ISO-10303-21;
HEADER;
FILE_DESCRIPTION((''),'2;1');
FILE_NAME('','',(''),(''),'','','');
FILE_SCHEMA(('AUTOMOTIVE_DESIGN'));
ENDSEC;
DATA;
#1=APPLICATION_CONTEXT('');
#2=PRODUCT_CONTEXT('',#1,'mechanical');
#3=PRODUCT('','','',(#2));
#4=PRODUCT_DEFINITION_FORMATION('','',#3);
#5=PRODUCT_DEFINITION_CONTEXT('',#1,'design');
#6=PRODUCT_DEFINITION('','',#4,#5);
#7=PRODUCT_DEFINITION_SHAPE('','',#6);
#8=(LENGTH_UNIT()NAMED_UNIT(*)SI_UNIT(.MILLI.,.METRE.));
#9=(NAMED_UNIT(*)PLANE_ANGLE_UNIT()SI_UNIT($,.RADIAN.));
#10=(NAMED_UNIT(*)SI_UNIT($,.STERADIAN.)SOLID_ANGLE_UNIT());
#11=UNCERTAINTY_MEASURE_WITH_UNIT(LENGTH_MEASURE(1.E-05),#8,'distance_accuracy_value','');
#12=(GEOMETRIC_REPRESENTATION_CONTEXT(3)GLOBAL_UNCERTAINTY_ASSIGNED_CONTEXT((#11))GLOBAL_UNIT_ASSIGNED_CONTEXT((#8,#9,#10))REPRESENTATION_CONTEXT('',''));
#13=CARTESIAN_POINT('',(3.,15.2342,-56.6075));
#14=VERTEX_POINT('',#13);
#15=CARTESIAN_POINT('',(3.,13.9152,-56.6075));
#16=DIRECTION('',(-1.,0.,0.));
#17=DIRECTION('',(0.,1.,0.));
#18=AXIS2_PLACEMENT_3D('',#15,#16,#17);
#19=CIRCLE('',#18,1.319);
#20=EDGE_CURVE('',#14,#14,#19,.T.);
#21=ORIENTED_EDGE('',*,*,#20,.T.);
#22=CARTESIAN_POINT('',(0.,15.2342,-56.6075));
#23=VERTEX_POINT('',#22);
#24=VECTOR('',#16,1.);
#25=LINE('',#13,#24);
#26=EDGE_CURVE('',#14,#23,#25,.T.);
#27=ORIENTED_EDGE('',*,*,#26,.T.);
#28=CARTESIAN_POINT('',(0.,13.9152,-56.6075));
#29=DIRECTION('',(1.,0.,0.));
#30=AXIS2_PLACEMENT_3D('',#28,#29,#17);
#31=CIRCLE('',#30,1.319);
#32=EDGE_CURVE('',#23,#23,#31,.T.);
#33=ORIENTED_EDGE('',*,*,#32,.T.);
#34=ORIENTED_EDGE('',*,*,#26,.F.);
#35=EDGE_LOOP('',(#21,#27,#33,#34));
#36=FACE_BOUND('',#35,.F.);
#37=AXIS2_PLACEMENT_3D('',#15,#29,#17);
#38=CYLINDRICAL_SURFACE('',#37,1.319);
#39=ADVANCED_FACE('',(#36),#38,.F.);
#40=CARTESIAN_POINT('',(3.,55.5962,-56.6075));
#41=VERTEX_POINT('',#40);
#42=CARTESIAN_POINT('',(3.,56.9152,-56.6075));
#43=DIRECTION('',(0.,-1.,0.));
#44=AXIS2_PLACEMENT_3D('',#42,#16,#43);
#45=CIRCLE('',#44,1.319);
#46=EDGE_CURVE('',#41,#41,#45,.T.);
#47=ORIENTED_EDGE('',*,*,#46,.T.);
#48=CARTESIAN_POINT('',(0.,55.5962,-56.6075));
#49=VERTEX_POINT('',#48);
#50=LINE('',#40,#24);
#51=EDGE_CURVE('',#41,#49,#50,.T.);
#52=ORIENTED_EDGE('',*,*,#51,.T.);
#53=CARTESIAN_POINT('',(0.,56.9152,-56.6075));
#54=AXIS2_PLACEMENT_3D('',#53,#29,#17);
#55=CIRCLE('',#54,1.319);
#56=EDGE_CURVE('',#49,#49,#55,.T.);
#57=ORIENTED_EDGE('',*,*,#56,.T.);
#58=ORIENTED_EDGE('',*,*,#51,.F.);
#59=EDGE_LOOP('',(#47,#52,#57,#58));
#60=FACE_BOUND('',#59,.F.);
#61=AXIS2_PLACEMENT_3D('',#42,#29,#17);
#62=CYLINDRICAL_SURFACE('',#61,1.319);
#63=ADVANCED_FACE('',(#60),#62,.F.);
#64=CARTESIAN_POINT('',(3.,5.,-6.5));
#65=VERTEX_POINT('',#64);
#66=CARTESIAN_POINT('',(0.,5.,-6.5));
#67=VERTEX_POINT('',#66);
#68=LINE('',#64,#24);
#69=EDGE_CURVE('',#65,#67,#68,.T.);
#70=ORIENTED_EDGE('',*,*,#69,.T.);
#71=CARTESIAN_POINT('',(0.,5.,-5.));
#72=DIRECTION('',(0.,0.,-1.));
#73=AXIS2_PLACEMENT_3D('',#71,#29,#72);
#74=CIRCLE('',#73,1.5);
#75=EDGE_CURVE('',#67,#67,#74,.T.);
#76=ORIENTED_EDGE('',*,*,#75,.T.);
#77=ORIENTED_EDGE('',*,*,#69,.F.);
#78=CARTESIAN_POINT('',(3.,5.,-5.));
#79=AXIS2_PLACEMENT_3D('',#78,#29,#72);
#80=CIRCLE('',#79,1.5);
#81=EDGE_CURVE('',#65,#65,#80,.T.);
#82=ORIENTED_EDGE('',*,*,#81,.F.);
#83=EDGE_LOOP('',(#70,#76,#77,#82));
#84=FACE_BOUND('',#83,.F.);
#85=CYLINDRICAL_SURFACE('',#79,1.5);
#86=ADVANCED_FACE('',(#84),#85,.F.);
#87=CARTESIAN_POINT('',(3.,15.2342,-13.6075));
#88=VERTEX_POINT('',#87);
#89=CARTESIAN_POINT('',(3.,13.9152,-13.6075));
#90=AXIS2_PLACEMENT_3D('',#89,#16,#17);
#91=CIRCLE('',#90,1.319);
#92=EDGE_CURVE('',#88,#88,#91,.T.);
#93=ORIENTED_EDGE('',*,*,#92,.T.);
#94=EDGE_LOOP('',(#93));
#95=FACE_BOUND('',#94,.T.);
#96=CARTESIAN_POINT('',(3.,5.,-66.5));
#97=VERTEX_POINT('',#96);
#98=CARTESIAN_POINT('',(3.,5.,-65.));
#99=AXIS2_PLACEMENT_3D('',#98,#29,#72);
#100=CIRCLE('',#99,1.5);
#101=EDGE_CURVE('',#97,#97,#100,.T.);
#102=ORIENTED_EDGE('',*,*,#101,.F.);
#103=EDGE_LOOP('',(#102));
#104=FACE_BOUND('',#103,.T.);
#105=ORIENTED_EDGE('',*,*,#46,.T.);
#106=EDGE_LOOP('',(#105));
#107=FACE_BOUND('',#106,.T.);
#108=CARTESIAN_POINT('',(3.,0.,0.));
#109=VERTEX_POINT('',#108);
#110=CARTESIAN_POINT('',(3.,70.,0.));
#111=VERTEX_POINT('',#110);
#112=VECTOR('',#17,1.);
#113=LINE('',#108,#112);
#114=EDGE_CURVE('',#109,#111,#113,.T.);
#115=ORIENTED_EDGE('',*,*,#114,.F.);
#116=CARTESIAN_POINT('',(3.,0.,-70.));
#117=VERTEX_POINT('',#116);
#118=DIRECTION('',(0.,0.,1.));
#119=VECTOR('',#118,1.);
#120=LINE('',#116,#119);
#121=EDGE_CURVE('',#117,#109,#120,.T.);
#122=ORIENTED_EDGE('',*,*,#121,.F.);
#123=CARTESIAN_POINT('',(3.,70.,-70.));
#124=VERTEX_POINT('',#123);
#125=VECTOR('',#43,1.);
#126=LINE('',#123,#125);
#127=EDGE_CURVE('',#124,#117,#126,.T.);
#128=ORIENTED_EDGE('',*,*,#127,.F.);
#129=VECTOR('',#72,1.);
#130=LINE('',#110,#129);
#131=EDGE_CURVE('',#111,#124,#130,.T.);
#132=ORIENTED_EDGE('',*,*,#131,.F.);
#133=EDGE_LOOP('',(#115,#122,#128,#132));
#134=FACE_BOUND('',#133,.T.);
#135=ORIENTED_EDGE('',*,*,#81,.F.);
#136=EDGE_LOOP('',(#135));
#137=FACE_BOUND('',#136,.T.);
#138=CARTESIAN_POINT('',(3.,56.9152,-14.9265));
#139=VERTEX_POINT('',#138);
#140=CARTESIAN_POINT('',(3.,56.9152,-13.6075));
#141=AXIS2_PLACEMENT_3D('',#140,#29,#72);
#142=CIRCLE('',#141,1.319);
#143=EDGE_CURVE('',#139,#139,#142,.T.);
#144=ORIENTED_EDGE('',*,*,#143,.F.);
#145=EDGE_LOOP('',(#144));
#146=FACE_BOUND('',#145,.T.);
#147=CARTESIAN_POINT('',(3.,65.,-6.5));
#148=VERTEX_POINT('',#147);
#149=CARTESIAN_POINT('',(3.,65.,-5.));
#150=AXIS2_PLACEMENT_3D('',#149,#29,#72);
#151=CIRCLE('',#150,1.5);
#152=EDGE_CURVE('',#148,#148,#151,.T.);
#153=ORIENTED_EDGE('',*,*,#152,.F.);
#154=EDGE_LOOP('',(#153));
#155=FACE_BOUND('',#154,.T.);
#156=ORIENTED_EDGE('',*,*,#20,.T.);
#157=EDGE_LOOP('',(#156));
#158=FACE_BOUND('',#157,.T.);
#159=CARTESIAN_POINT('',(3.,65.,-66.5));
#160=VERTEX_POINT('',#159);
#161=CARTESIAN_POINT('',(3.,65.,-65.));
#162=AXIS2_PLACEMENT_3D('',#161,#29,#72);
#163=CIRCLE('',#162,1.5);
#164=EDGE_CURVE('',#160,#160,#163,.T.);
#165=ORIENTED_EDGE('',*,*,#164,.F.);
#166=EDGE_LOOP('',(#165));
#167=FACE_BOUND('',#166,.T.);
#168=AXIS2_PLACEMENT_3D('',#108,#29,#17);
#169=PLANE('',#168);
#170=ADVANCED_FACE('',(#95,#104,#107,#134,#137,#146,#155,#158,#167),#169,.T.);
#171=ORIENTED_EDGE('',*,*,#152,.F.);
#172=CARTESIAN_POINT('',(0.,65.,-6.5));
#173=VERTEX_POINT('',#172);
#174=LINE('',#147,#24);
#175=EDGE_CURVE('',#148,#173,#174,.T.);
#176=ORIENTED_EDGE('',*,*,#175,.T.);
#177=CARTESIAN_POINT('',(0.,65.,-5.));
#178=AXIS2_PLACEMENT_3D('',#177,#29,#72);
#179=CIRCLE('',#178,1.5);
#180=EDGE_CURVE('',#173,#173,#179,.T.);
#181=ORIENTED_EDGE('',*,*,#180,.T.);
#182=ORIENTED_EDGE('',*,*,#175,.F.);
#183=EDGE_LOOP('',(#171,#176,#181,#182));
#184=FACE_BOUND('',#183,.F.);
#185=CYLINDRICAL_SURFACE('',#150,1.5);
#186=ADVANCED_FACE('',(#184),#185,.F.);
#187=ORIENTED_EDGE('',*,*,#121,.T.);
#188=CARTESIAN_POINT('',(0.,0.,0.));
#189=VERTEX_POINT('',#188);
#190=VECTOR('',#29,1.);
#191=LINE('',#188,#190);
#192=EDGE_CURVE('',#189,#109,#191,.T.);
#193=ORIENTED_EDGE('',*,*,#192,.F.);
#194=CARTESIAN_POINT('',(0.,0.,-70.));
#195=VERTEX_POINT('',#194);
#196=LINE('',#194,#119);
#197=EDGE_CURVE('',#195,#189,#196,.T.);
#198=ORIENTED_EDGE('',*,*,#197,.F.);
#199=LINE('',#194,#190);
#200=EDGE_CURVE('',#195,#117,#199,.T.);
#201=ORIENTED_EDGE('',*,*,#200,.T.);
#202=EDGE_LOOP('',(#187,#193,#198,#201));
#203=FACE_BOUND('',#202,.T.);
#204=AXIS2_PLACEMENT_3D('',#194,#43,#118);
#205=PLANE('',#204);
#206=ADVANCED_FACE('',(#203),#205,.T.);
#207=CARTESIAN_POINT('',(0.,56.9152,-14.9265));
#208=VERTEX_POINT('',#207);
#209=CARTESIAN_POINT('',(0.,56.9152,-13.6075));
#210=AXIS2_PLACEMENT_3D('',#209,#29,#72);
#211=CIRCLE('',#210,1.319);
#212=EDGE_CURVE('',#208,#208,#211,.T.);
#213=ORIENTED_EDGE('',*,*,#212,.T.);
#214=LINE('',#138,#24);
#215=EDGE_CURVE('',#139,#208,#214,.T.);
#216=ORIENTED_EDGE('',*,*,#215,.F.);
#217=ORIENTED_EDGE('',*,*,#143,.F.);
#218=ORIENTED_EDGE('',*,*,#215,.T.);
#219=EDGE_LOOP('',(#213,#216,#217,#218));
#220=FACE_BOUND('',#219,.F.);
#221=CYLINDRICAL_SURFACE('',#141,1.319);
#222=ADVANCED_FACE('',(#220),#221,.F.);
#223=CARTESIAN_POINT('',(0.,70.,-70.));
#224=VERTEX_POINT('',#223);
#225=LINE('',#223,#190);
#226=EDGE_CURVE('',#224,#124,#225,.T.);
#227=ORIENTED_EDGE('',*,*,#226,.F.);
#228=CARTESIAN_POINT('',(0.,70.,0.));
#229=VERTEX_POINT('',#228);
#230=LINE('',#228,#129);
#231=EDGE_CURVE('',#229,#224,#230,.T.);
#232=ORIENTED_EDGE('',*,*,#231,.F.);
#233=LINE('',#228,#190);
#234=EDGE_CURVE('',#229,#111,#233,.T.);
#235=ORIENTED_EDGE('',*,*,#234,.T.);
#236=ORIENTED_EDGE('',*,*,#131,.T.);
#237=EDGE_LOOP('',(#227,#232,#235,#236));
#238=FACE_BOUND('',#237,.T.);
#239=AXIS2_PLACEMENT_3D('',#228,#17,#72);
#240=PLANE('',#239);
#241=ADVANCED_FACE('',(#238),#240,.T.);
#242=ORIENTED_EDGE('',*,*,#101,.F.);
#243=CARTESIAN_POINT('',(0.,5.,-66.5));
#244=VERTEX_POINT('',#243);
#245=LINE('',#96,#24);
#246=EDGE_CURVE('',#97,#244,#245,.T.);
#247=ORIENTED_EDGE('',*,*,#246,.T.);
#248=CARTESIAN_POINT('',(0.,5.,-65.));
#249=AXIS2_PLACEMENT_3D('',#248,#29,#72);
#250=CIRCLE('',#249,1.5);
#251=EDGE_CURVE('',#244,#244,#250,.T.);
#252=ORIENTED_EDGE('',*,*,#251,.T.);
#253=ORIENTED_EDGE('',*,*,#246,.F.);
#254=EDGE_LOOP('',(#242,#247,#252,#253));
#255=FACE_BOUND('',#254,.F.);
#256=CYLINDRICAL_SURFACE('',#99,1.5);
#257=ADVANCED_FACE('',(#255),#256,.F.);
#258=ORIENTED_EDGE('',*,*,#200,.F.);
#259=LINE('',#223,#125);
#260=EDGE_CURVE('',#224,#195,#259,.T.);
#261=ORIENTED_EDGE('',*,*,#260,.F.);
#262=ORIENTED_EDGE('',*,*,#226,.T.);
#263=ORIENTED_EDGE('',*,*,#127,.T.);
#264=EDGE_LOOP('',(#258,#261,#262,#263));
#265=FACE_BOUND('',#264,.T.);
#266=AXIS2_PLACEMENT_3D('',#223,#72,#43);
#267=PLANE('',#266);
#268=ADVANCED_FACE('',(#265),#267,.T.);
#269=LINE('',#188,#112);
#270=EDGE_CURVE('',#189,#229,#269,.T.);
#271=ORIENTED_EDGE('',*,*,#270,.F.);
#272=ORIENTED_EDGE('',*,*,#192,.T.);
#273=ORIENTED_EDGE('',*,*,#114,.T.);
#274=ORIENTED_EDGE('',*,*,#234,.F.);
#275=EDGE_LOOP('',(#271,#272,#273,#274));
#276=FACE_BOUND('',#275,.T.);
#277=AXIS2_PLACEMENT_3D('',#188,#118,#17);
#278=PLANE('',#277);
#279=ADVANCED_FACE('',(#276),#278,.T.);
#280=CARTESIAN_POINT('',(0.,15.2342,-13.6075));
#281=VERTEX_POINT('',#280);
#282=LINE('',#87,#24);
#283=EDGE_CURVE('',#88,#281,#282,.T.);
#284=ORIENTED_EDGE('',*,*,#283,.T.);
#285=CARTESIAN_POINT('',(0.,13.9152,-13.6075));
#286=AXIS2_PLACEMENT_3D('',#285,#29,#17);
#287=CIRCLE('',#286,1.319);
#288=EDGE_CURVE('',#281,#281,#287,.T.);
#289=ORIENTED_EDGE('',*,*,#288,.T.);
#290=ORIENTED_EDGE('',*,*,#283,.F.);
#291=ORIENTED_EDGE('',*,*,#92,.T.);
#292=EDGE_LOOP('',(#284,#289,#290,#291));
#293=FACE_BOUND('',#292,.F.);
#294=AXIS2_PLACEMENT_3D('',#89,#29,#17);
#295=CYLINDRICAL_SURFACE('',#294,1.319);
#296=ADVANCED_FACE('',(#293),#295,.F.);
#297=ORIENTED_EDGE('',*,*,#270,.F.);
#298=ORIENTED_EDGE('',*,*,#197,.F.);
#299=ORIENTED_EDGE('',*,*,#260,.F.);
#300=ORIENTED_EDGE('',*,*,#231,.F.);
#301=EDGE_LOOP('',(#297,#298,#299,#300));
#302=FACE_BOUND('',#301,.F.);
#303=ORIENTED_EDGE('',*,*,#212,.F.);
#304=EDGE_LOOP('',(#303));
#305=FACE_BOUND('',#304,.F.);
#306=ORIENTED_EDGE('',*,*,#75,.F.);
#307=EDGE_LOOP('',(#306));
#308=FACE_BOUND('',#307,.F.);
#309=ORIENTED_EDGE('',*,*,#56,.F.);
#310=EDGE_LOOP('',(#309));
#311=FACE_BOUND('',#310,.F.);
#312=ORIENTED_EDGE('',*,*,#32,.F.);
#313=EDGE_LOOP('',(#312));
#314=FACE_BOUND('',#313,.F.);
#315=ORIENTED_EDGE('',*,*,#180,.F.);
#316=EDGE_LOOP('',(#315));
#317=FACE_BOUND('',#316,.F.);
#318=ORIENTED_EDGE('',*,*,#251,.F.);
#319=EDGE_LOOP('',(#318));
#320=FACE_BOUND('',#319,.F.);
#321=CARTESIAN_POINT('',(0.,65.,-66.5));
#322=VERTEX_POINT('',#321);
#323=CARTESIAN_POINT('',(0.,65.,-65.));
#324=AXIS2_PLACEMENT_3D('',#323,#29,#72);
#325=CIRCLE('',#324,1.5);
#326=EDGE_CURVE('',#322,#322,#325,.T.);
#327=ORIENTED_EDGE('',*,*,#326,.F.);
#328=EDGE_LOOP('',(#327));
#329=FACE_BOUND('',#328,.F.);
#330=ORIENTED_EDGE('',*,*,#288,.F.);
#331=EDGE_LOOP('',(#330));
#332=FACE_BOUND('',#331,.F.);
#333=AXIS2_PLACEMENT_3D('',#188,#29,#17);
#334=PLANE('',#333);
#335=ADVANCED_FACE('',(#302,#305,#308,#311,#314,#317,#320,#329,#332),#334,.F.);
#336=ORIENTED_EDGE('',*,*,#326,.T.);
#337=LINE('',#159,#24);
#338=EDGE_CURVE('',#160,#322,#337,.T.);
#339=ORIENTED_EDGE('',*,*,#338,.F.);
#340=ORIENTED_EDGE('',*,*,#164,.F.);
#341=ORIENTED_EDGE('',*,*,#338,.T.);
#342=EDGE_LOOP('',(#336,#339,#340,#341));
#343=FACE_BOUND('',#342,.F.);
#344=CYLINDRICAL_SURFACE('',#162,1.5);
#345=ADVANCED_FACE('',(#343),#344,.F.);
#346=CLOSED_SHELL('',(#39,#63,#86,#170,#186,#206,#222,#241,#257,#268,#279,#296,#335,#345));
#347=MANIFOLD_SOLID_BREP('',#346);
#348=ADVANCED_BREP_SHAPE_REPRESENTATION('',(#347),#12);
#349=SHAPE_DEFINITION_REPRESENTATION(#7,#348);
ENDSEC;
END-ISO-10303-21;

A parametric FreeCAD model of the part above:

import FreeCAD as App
import Part
import Sketcher

V = App.Vector
Q = App.Units.Quantity

doc = App.newDocument("Part")
body = doc.addObject("PartDesign::Body", "Body")

# Sketch on YZ plane
sketch1 = doc.addObject("Sketcher::SketchObject", "Sketch")
body.addObject(sketch1)
sketch1.AttachmentSupport = (doc.YZ_Plane, [""])
sketch1.MapMode = "FlatFace"
sketch1.addGeometry([
    Part.LineSegment(V(70, 0, 0), V(0, 0, 0)),
    Part.LineSegment(V(0, 0, 0), V(0, -70, 0)),
    Part.LineSegment(V(0, -70, 0), V(70, -70, 0)),
    Part.LineSegment(V(70, -70, 0), V(70, 0, 0)),
], False)
sketch1.addConstraint([
    Sketcher.Constraint("Coincident", 0, 2, 1, 1),
    Sketcher.Constraint("Coincident", 1, 2, 2, 1),
    Sketcher.Constraint("Coincident", 2, 2, 3, 1),
    Sketcher.Constraint("Coincident", 3, 2, 0, 1),
    Sketcher.Constraint("Horizontal", 0),
    Sketcher.Constraint("Vertical", 1),
    Sketcher.Constraint("Horizontal", 2),
    Sketcher.Constraint("Vertical", 3),
    Sketcher.Constraint("Coincident", 0, 2, -1, 1),
    Sketcher.Constraint("Equal", 2, 1),
    Sketcher.Constraint("DistanceX", 0, 2, 0, 1, Q("70 mm")),
])
pad1 = doc.addObject("PartDesign::Pad", "Pad")
body.addObject(pad1)
pad1.Profile = sketch1
pad1.Length = 3

# Sketch on YZ plane
sketch2 = doc.addObject("Sketcher::SketchObject", "Sketch001")
body.addObject(sketch2)
sketch2.AttachmentSupport = (doc.YZ_Plane, [""])
sketch2.MapMode = "FlatFace"
sketch2.AttachmentOffset = App.Placement(V(0, 0, 3), App.Rotation())
sketch2.addGeometry([
    Part.Circle(V(56.9, -56.6, 0), V(0, 0, 1), 1.3),
    Part.Circle(V(13.9, -56.6, 0), V(0, 0, 1), 1.3),
    Part.Circle(V(13.9, -13.6, 0), V(0, 0, 1), 1.3),
    Part.Circle(V(56.9, -13.6, 0), V(0, 0, 1), 1.3),
], False)
sketch2.addConstraint([
    Sketcher.Constraint("Equal", 0, 1),
    Sketcher.Constraint("Equal", 1, 2),
    Sketcher.Constraint("Equal", 2, 3),
    Sketcher.Constraint("Horizontal", 0, 3, 1, 3),
    Sketcher.Constraint("Horizontal", 2, 3, 3, 3),
    Sketcher.Constraint("Vertical", 1, 3, 2, 3),
    Sketcher.Constraint("Vertical", 0, 3, 3, 3),
    Sketcher.Constraint("Diameter", 0, Q("2.638 mm")),
    Sketcher.Constraint("DistanceX", 1, 3, 0, 3, Q("43 mm")),
    Sketcher.Constraint("DistanceY", 1, 3, 2, 3, Q("43 mm")),
    Sketcher.Constraint("DistanceX", -1, 1, 0, 3, Q("56.9152 mm")),
    Sketcher.Constraint("DistanceY", 0, 3, -1, 1, Q("56.6075 mm")),
])
pocket1 = doc.addObject("PartDesign::Pocket", "Pocket")
body.addObject(pocket1)
pocket1.Profile = sketch2
pocket1.Length = 68.4375

# Sketch on YZ plane
sketch3 = doc.addObject("Sketcher::SketchObject", "Sketch002")
body.addObject(sketch3)
sketch3.AttachmentSupport = (doc.YZ_Plane, [""])
sketch3.MapMode = "FlatFace"
sketch3.AttachmentOffset = App.Placement(V(0, 0, 3), App.Rotation())
sketch3.addGeometry([
    Part.Circle(V(5, -5, 0), V(0, 0, 1), 1.5),
    Part.Circle(V(65, -5, 0), V(0, 0, 1), 1.5),
    Part.Circle(V(65, -65, 0), V(0, 0, 1), 1.5),
    Part.Circle(V(5, -65, 0), V(0, 0, 1), 1.5),
], False)
sketch3.addConstraint([
    Sketcher.Constraint("Equal", 0, 1),
    Sketcher.Constraint("Equal", 1, 2),
    Sketcher.Constraint("Equal", 2, 3),
    Sketcher.Constraint("Horizontal", 0, 3, 1, 3),
    Sketcher.Constraint("Horizontal", 2, 3, 3, 3),
    Sketcher.Constraint("Vertical", 1, 3, 2, 3),
    Sketcher.Constraint("Vertical", 0, 3, 3, 3),
    Sketcher.Constraint("Diameter", 0, Q("3 mm")),
    Sketcher.Constraint("DistanceX", -1, 1, 0, 3, Q("5 mm")),
    Sketcher.Constraint("DistanceY", 0, 3, -1, 1, Q("5 mm")),
    Sketcher.Constraint("DistanceX", -1, 1, 1, 3, Q("65 mm")),
    Sketcher.Constraint("DistanceY", 2, 3, -1, 1, Q("65 mm")),
])
pocket2 = doc.addObject("PartDesign::Pocket", "Pocket001")
body.addObject(pocket2)
pocket2.Profile = sketch3
pocket2.Length = 39.5125

doc.recompute()
